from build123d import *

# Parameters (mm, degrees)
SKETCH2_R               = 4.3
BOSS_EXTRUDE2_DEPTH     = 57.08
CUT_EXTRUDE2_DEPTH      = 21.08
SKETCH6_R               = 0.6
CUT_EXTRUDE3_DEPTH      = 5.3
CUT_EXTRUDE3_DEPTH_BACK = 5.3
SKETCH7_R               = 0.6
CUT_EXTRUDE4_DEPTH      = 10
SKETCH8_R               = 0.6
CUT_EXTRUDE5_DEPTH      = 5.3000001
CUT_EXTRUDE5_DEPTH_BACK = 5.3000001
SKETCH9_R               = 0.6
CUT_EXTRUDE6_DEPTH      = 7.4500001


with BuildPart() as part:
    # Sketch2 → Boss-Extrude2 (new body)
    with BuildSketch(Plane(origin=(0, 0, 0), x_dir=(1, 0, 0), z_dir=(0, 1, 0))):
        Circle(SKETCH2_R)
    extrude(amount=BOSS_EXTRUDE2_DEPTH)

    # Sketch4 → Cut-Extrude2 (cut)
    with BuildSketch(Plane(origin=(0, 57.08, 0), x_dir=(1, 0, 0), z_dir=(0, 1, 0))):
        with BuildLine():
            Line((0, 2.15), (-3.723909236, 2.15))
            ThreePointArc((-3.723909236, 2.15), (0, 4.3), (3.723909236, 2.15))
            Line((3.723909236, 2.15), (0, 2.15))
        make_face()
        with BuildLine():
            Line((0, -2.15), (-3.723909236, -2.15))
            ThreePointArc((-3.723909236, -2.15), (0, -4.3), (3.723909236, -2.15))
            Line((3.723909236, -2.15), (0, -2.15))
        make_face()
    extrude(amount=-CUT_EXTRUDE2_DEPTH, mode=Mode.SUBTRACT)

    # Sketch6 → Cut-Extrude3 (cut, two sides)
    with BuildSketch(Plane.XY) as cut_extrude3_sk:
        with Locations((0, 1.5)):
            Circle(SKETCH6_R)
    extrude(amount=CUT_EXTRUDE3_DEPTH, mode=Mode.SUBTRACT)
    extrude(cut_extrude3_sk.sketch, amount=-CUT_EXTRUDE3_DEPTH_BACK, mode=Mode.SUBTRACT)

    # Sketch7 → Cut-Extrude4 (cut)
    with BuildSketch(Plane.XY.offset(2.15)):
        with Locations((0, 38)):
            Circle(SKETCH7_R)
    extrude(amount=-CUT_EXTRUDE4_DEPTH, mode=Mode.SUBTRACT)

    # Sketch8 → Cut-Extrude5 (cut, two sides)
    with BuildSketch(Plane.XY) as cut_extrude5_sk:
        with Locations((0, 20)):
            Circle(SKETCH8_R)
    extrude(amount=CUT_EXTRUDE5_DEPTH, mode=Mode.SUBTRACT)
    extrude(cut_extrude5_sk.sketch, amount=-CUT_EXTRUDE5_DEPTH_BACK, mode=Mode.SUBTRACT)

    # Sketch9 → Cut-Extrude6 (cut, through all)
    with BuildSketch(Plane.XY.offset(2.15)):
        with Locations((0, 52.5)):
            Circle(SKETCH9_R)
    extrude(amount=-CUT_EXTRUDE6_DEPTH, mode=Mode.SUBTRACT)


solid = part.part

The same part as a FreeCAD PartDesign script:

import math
import FreeCAD as App
import Part
import Sketcher

V = App.Vector

doc = App.newDocument("Part")
params = doc.addObject("Spreadsheet::Sheet", "Params")
for row, (alias, value) in enumerate([
    ("sketch1_diameter", "8.6 mm"),
    ("pad1_length", "57.08 mm"),
    ("sketch2_radius", "4.3 mm"),
    ("pocket1_length", "21.08 mm"),
    ("sketch3_diameter", "1.2 mm"),
    ("sketch4_diameter", "1.2 mm"),
    ("pocket3_length", "10 mm"),
    ("sketch5_diameter", "1.2 mm"),
    ("sketch6_diameter", "1.2 mm"),
], start=1):
    params.set(f"A{row}", alias)
    params.set(f"B{row}", "=" + value)
    params.setAlias(f"B{row}", alias)

body = doc.addObject("PartDesign::Body", "Body")

sketch1 = body.newObject("Sketcher::SketchObject", "Sketch")
sketch1.AttachmentSupport = (doc.getObject("XZ_Plane"), [""])
sketch1.MapMode = "FlatFace"
sketch1.addGeometry(Part.Circle(V(0, 0, 0), V(0, 0, 1), 4.3), False)
sketch1.addConstraint(Sketcher.Constraint("Coincident", 0, 3, -1, 1))
sketch1.addConstraint(Sketcher.Constraint("Diameter", 0, 8.6))
sketch1.setExpression("Constraints[1]", "Params.sketch1_diameter")
pad1 = body.newObject("PartDesign::Pad", "Pad")
pad1.Profile = sketch1
pad1.setExpression("Length", "Params.pad1_length")
pad1.Reversed = True

sketch2 = body.newObject("Sketcher::SketchObject", "Sketch001")
sketch2.AttachmentSupport = (doc.getObject("XZ_Plane"), [""])
sketch2.MapMode = "FlatFace"
sketch2.AttachmentOffset = App.Placement(V(0, 0, -57.08), App.Rotation())
sketch2.addGeometry(Part.ArcOfCircle(Part.Circle(V(0, 0, 0), V(0, 0, 1), 4.3), math.radians(-150), math.radians(-30)), False)
sketch2.addGeometry(Part.LineSegment(V(-3.7, -2.1, 0), V(3.7, -2.1, 0)), False)
sketch2.addGeometry(Part.ArcOfCircle(Part.Circle(V(0, 0, 0), V(0, 0, 1), 4.3), math.radians(30), math.radians(150)), False)
sketch2.addGeometry(Part.LineSegment(V(3.7, 2.1, 0), V(-3.7, 2.1, 0)), False)
sketch2.addConstraint(Sketcher.Constraint("Coincident", 0, 1, 1, 1))
sketch2.addConstraint(Sketcher.Constraint("Coincident", 1, 2, 0, 2))
sketch2.addConstraint(Sketcher.Constraint("Coincident", 2, 1, 3, 1))
sketch2.addConstraint(Sketcher.Constraint("Coincident", 3, 2, 2, 2))
sketch2.addConstraint(Sketcher.Constraint("Horizontal", 1))
sketch2.addConstraint(Sketcher.Constraint("Horizontal", 3))
sketch2.addConstraint(Sketcher.Constraint("Coincident", 0, 3, -1, 1))
sketch2.addConstraint(Sketcher.Constraint("Coincident", 2, 3, -1, 1))
sketch2.addConstraint(Sketcher.Constraint("Equal", 0, 2))
sketch2.addConstraint(Sketcher.Constraint("Vertical", 1, 2, 2, 1))
sketch2.addConstraint(Sketcher.Constraint("Radius", 0, 4.3))
sketch2.addConstraint(Sketcher.Constraint("DistanceY", 1, 2, 2, 1, 4.3))
sketch2.setExpression("Constraints[10]", "Params.sketch2_radius")
pocket1 = body.newObject("PartDesign::Pocket", "Pocket")
pocket1.Profile = sketch2
pocket1.setExpression("Length", "Params.pocket1_length")
pocket1.Reversed = True

sketch3 = body.newObject("Sketcher::SketchObject", "Sketch002")
sketch3.AttachmentSupport = (doc.getObject("XY_Plane"), [""])
sketch3.MapMode = "FlatFace"
sketch3.addGeometry(Part.Circle(V(0, 1.5, 0), V(0, 0, 1), 0.6), False)
sketch3.addConstraint(Sketcher.Constraint("PointOnObject", 0, 3, -2))
sketch3.addConstraint(Sketcher.Constraint("Diameter", 0, 1.2))
sketch3.addConstraint(Sketcher.Constraint("DistanceY", -1, 1, 0, 3, 1.5))
sketch3.setExpression("Constraints[1]", "Params.sketch3_diameter")
pocket2 = body.newObject("PartDesign::Pocket", "Pocket001")
pocket2.Profile = sketch3
pocket2.Type = "ThroughAll"
pocket2.Midplane = True

sketch4 = body.newObject("Sketcher::SketchObject", "Sketch003")
sketch4.AttachmentSupport = (doc.getObject("XY_Plane"), [""])
sketch4.MapMode = "FlatFace"
sketch4.AttachmentOffset = App.Placement(V(0, 0, 2.15), App.Rotation())
sketch4.addGeometry(Part.Circle(V(0, 38, 0), V(0, 0, 1), 0.6), False)
sketch4.addConstraint(Sketcher.Constraint("PointOnObject", 0, 3, -2))
sketch4.addConstraint(Sketcher.Constraint("Diameter", 0, 1.2))
sketch4.addConstraint(Sketcher.Constraint("DistanceY", -1, 1, 0, 3, 38.0))
sketch4.setExpression("Constraints[1]", "Params.sketch4_diameter")
pocket3 = body.newObject("PartDesign::Pocket", "Pocket002")
pocket3.Profile = sketch4
pocket3.setExpression("Length", "Params.pocket3_length")

sketch5 = body.newObject("Sketcher::SketchObject", "Sketch004")
sketch5.AttachmentSupport = (doc.getObject("XY_Plane"), [""])
sketch5.MapMode = "FlatFace"
sketch5.addGeometry(Part.Circle(V(0, 20, 0), V(0, 0, 1), 0.6), False)
sketch5.addConstraint(Sketcher.Constraint("PointOnObject", 0, 3, -2))
sketch5.addConstraint(Sketcher.Constraint("Diameter", 0, 1.2))
sketch5.addConstraint(Sketcher.Constraint("DistanceY", -1, 1, 0, 3, 20.0))
sketch5.setExpression("Constraints[1]", "Params.sketch5_diameter")
pocket4 = body.newObject("PartDesign::Pocket", "Pocket003")
pocket4.Profile = sketch5
pocket4.Type = "ThroughAll"
pocket4.Midplane = True

sketch6 = body.newObject("Sketcher::SketchObject", "Sketch005")
sketch6.AttachmentSupport = (doc.getObject("XY_Plane"), [""])
sketch6.MapMode = "FlatFace"
sketch6.AttachmentOffset = App.Placement(V(0, 0, 2.15), App.Rotation())
sketch6.addGeometry(Part.Circle(V(0, 52.5, 0), V(0, 0, 1), 0.6), False)
sketch6.addConstraint(Sketcher.Constraint("PointOnObject", 0, 3, -2))
sketch6.addConstraint(Sketcher.Constraint("Diameter", 0, 1.2))
sketch6.addConstraint(Sketcher.Constraint("DistanceY", -1, 1, 0, 3, 52.5))
sketch6.setExpression("Constraints[1]", "Params.sketch6_diameter")
pocket5 = body.newObject("PartDesign::Pocket", "Pocket004")
pocket5.Profile = sketch6
pocket5.Type = "ThroughAll"

doc.recompute()
